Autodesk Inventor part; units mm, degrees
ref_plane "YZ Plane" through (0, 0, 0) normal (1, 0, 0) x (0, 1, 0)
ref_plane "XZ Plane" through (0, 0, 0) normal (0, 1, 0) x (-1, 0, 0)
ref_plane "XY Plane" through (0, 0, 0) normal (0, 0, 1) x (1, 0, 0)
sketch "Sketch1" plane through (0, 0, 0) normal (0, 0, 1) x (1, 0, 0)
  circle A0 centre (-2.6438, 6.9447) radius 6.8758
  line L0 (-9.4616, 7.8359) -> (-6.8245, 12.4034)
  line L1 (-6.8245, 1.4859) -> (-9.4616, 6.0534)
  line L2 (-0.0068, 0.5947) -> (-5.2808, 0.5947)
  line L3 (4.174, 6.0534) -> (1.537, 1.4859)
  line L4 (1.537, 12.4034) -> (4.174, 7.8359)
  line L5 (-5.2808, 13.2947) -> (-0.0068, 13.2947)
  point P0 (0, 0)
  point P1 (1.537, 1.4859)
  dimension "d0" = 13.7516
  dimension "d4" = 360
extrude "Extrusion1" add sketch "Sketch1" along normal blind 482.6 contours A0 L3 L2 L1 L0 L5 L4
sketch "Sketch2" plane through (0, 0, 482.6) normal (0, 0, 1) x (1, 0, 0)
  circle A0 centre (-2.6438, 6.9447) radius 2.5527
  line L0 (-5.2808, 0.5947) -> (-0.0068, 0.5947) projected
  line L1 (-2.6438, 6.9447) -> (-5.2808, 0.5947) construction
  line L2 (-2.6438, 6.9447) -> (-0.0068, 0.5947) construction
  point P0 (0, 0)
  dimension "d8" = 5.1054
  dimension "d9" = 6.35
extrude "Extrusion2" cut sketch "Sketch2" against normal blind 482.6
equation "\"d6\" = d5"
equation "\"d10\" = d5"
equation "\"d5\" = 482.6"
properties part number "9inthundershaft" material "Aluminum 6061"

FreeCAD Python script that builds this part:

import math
import FreeCAD as App
import Part
import Sketcher
Q = App.Units.Quantity

doc = App.newDocument("Part")
params = doc.addObject("Spreadsheet::Sheet", "Params")
for row, (alias, value) in enumerate([
    ("pad1_length", "19 in"),
    ("sketch2_diameter", "0.201 in"),
    ("pocket1_length", "19 in"),
], start=1):
    params.set(f"A{row}", alias)
    params.set(f"B{row}", "=" + value)
    params.setAlias(f"B{row}", alias)

body = doc.addObject("PartDesign::Body", "Body")

sketch1 = body.newObject("Sketcher::SketchObject", "Sketch")
sketch1.AttachmentSupport = (doc.getObject("XY_Plane"), [""])
sketch1.MapMode = "FlatFace"
sketch1.addGeometry(Part.ArcOfCircle(Part.Circle(App.Vector(-2.6438, 6.9447, 0), App.Vector(0, 0, 1), 6.8758), math.radians(-7.448114), math.radians(7.447287)), False)
sketch1.addGeometry(Part.LineSegment(App.Vector(4.174, 7.8359, 0), App.Vector(1.537, 12.4034, 0)), False)
sketch1.addGeometry(Part.ArcOfCircle(Part.Circle(App.Vector(-2.6438, 6.9447, 0), App.Vector(0, 0, 1), 6.8758), math.radians(52.551618), math.radians(67.448081)), False)
sketch1.addGeometry(Part.LineSegment(App.Vector(-0.0068, 13.2947, 0), App.Vector(-5.2808, 13.2947, 0)), False)
sketch1.addGeometry(Part.ArcOfCircle(Part.Circle(App.Vector(-2.6438, 6.9447, 0), App.Vector(0, 0, 1), 6.8758), math.radians(112.551919), math.radians(127.447721)), False)
sketch1.addGeometry(Part.LineSegment(App.Vector(-6.8245, 12.4034, 0), App.Vector(-9.4616, 7.8359, 0)), False)
sketch1.addGeometry(Part.ArcOfCircle(Part.Circle(App.Vector(-2.6438, 6.9447, 0), App.Vector(0, 0, 1), 6.8758), math.radians(172.552713), math.radians(187.448114)), False)
sketch1.addGeometry(Part.LineSegment(App.Vector(-9.4616, 6.0534, 0), App.Vector(-6.8245, 1.4859, 0)), False)
sketch1.addGeometry(Part.ArcOfCircle(Part.Circle(App.Vector(-2.6438, 6.9447, 0), App.Vector(0, 0, 1), 6.8758), math.radians(-127.447214), math.radians(-112.551919)), False)
sketch1.addGeometry(Part.LineSegment(App.Vector(-5.2808, 0.5947, 0), App.Vector(-0.0068, 0.5947, 0)), False)
sketch1.addGeometry(Part.ArcOfCircle(Part.Circle(App.Vector(-2.6438, 6.9447, 0), App.Vector(0, 0, 1), 6.8758), math.radians(-67.448081), math.radians(-52.552124)), False)
sketch1.addGeometry(Part.LineSegment(App.Vector(1.537, 1.4859, 0), App.Vector(4.174, 6.0534, 0)), False)
sketch1.addConstraint(Sketcher.Constraint("Coincident", 0, 2, 1, 1))
sketch1.addConstraint(Sketcher.Constraint("Coincident", 1, 2, 2, 1))
sketch1.addConstraint(Sketcher.Constraint("Coincident", 2, 2, 3, 1))
sketch1.addConstraint(Sketcher.Constraint("Coincident", 3, 2, 4, 1))
sketch1.addConstraint(Sketcher.Constraint("Coincident", 4, 2, 5, 1))
sketch1.addConstraint(Sketcher.Constraint("Coincident", 5, 2, 6, 1))
sketch1.addConstraint(Sketcher.Constraint("Coincident", 6, 2, 7, 1))
sketch1.addConstraint(Sketcher.Constraint("Coincident", 7, 2, 8, 1))
sketch1.addConstraint(Sketcher.Constraint("Coincident", 8, 2, 9, 1))
sketch1.addConstraint(Sketcher.Constraint("Coincident", 9, 2, 10, 1))
sketch1.addConstraint(Sketcher.Constraint("Coincident", 10, 2, 11, 1))
sketch1.addConstraint(Sketcher.Constraint("Coincident", 11, 2, 0, 1))
sketch1.addConstraint(Sketcher.Constraint("Horizontal", 3))
sketch1.addConstraint(Sketcher.Constraint("Horizontal", 9))
sketch1.addConstraint(Sketcher.Constraint("Coincident", 2, 3, 0, 3))
sketch1.addConstraint(Sketcher.Constraint("Coincident", 4, 3, 0, 3))
sketch1.addConstraint(Sketcher.Constraint("Coincident", 6, 3, 0, 3))
sketch1.addConstraint(Sketcher.Constraint("Coincident", 8, 3, 0, 3))
sketch1.addConstraint(Sketcher.Constraint("Coincident", 10, 3, 0, 3))
sketch1.addConstraint(Sketcher.Constraint("Equal", 0, 2))
sketch1.addConstraint(Sketcher.Constraint("Equal", 2, 4))
sketch1.addConstraint(Sketcher.Constraint("Equal", 4, 6))
sketch1.addConstraint(Sketcher.Constraint("Equal", 6, 8))
sketch1.addConstraint(Sketcher.Constraint("Equal", 8, 10))
sketch1.addConstraint(Sketcher.Constraint("Parallel", 1, 7))
sketch1.addConstraint(Sketcher.Constraint("Parallel", 5, 11))
sketch1.addConstraint(Sketcher.Constraint("Horizontal", 1, 2, 4, 2))
sketch1.addConstraint(Sketcher.Constraint("Horizontal", 0, 2, 5, 2))
sketch1.addConstraint(Sketcher.Constraint("Horizontal", 7, 2, 10, 2))
sketch1.addConstraint(Sketcher.Constraint("Vertical", 5, 2, 6, 2))
sketch1.addConstraint(Sketcher.Constraint("Vertical", 3, 2, 8, 2))
sketch1.addConstraint(Sketcher.Constraint("Radius", 0, Q("0.2707 in")))
sketch1.addConstraint(Sketcher.Constraint("Angle", 1, Q("119.9996 deg")))
sketch1.addConstraint(Sketcher.Constraint("DistanceY", 0, 3, 2, 2, Q("0.25 in")))
sketch1.addConstraint(Sketcher.Constraint("DistanceY", 10, 2, 0, 2, Q("0.25 in")))
sketch1.addConstraint(Sketcher.Constraint("DistanceY", -1, 1, 0, 2, Q("0.3085 in")))
sketch1.addConstraint(Sketcher.Constraint("DistanceX", -1, 1, 1, 2, Q("0.0605 in")))
pad1 = body.newObject("PartDesign::Pad", "Pad")
pad1.Profile = sketch1
pad1.setExpression("Length", "Params.pad1_length")

sketch2 = body.newObject("Sketcher::SketchObject", "Sketch001")
sketch2.AttachmentSupport = (doc.getObject("XY_Plane"), [""])
sketch2.MapMode = "FlatFace"
sketch2.AttachmentOffset = App.Placement(App.Vector(0, 0, 19 * 25.4), App.Rotation())
sketch2.addGeometry(Part.Circle(App.Vector(-2.6438, 6.9447, 0), App.Vector(0, 0, 1), 2.5527), False)
sketch2.addConstraint(Sketcher.Constraint("Diameter", 0, Q("0.201 in")))
sketch2.addConstraint(Sketcher.Constraint("DistanceX", 0, 3, -1, 1, 2.6438))
sketch2.addConstraint(Sketcher.Constraint("DistanceY", -1, 1, 0, 3, 6.9447))
sketch2.setExpression("Constraints[0]", "Params.sketch2_diameter")
pocket1 = body.newObject("PartDesign::Pocket", "Pocket")
pocket1.Profile = sketch2
pocket1.setExpression("Length", "Params.pocket1_length")

doc.recompute()
